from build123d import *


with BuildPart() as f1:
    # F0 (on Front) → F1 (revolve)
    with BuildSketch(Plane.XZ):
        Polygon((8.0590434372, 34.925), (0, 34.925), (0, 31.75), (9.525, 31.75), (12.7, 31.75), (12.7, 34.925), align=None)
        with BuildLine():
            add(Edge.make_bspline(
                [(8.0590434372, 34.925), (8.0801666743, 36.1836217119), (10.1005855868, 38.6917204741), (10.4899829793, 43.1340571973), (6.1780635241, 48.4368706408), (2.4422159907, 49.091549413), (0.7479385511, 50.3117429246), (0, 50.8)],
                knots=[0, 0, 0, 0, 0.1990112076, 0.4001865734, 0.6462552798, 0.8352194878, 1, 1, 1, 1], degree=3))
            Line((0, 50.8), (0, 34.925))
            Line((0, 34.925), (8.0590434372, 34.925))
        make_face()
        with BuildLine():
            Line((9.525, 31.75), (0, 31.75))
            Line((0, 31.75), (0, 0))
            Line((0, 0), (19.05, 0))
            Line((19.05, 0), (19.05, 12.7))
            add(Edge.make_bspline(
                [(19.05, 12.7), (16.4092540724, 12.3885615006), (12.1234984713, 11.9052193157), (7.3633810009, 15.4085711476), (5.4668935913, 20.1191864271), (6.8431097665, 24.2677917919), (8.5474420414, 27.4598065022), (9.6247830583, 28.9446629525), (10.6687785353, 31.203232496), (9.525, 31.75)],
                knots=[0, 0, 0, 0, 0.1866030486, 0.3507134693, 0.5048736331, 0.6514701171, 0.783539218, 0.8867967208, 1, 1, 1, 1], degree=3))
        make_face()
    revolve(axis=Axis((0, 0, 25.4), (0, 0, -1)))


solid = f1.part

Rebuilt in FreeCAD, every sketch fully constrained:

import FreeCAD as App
import Part
import Sketcher
Q = App.Units.Quantity

doc = App.newDocument("Part")
body = doc.addObject("PartDesign::Body", "Body")

sketch1 = body.newObject("Sketcher::SketchObject", "Sketch")
sketch1.AttachmentSupport = (doc.getObject("XZ_Plane"), [""])
sketch1.MapMode = "FlatFace"
sketch1.addGeometry([
    Part.LineSegment(App.Vector(9.525, 31.75, 0), App.Vector(12.7, 31.75, 0)),
    Part.LineSegment(App.Vector(12.7, 31.75, 0), App.Vector(12.7, 34.925, 0)),
    Part.LineSegment(App.Vector(12.7, 34.925, 0), App.Vector(8.059043, 34.925, 0)),
    Part.BSplineCurve([App.Vector(8.059043, 34.925, 0), App.Vector(8.080167, 36.183622, 0), App.Vector(10.100586, 38.69172, 0), App.Vector(10.489983, 43.134057, 0), App.Vector(6.178064, 48.436871, 0), App.Vector(2.442216, 49.091549, 0), App.Vector(0.747939, 50.311743, 0), App.Vector(0, 50.8, 0)], [4, 1, 1, 1, 1, 4], [0, 0.199011208, 0.400186573, 0.64625528, 0.835219488, 1], False, 3, [1, 1, 1, 1, 1, 1, 1, 1], False),
    Part.LineSegment(App.Vector(0, 50.8, 0), App.Vector(0, 0, 0)),
    Part.LineSegment(App.Vector(0, 0, 0), App.Vector(19.05, 0, 0)),
    Part.LineSegment(App.Vector(19.05, 0, 0), App.Vector(19.05, 12.7, 0)),
    Part.BSplineCurve([App.Vector(19.05, 12.7, 0), App.Vector(16.409254, 12.388562, 0), App.Vector(12.123498, 11.905219, 0), App.Vector(7.363381, 15.408571, 0), App.Vector(5.466894, 20.119186, 0), App.Vector(6.84311, 24.267792, 0), App.Vector(8.547442, 27.459807, 0), App.Vector(9.624783, 28.944663, 0), App.Vector(10.668779, 31.203232, 0), App.Vector(9.525, 31.75, 0)], [4, 1, 1, 1, 1, 1, 1, 4], [0, 0.186603049, 0.350713469, 0.504873633, 0.651470117, 0.783539218, 0.886796721, 1], False, 3, [1, 1, 1, 1, 1, 1, 1, 1, 1, 1], False),
], False)
sketch1.addConstraint([
    Sketcher.Constraint("Block", 3),
    Sketcher.Constraint("Block", 7),
    Sketcher.Constraint("Coincident", 0, 2, 1, 1),
    Sketcher.Constraint("Coincident", 1, 2, 2, 1),
    Sketcher.Constraint("Coincident", 2, 2, 3, 1),
    Sketcher.Constraint("Coincident", 3, 2, 4, 1),
    Sketcher.Constraint("Coincident", 4, 2, 5, 1),
    Sketcher.Constraint("Coincident", 5, 2, 6, 1),
    Sketcher.Constraint("Coincident", 6, 2, 7, 1),
    Sketcher.Constraint("Coincident", 7, 2, 0, 1),
    Sketcher.Constraint("Horizontal", 0),
    Sketcher.Constraint("Vertical", 1),
    Sketcher.Constraint("Horizontal", 2),
    Sketcher.Constraint("Vertical", 4),
    Sketcher.Constraint("Horizontal", 5),
    Sketcher.Constraint("Vertical", 6),
    Sketcher.Constraint("PointOnObject", 5, 2, -1),
    Sketcher.Constraint("DistanceX", -1, 1, 0, 2, Q("0.5 in")),
])
revolution = body.newObject("PartDesign::Revolution", "Revolution")
revolution.Profile = sketch1
revolution.ReferenceAxis = (sketch1, ["V_Axis"])
revolution.Angle = 360

doc.recompute()
